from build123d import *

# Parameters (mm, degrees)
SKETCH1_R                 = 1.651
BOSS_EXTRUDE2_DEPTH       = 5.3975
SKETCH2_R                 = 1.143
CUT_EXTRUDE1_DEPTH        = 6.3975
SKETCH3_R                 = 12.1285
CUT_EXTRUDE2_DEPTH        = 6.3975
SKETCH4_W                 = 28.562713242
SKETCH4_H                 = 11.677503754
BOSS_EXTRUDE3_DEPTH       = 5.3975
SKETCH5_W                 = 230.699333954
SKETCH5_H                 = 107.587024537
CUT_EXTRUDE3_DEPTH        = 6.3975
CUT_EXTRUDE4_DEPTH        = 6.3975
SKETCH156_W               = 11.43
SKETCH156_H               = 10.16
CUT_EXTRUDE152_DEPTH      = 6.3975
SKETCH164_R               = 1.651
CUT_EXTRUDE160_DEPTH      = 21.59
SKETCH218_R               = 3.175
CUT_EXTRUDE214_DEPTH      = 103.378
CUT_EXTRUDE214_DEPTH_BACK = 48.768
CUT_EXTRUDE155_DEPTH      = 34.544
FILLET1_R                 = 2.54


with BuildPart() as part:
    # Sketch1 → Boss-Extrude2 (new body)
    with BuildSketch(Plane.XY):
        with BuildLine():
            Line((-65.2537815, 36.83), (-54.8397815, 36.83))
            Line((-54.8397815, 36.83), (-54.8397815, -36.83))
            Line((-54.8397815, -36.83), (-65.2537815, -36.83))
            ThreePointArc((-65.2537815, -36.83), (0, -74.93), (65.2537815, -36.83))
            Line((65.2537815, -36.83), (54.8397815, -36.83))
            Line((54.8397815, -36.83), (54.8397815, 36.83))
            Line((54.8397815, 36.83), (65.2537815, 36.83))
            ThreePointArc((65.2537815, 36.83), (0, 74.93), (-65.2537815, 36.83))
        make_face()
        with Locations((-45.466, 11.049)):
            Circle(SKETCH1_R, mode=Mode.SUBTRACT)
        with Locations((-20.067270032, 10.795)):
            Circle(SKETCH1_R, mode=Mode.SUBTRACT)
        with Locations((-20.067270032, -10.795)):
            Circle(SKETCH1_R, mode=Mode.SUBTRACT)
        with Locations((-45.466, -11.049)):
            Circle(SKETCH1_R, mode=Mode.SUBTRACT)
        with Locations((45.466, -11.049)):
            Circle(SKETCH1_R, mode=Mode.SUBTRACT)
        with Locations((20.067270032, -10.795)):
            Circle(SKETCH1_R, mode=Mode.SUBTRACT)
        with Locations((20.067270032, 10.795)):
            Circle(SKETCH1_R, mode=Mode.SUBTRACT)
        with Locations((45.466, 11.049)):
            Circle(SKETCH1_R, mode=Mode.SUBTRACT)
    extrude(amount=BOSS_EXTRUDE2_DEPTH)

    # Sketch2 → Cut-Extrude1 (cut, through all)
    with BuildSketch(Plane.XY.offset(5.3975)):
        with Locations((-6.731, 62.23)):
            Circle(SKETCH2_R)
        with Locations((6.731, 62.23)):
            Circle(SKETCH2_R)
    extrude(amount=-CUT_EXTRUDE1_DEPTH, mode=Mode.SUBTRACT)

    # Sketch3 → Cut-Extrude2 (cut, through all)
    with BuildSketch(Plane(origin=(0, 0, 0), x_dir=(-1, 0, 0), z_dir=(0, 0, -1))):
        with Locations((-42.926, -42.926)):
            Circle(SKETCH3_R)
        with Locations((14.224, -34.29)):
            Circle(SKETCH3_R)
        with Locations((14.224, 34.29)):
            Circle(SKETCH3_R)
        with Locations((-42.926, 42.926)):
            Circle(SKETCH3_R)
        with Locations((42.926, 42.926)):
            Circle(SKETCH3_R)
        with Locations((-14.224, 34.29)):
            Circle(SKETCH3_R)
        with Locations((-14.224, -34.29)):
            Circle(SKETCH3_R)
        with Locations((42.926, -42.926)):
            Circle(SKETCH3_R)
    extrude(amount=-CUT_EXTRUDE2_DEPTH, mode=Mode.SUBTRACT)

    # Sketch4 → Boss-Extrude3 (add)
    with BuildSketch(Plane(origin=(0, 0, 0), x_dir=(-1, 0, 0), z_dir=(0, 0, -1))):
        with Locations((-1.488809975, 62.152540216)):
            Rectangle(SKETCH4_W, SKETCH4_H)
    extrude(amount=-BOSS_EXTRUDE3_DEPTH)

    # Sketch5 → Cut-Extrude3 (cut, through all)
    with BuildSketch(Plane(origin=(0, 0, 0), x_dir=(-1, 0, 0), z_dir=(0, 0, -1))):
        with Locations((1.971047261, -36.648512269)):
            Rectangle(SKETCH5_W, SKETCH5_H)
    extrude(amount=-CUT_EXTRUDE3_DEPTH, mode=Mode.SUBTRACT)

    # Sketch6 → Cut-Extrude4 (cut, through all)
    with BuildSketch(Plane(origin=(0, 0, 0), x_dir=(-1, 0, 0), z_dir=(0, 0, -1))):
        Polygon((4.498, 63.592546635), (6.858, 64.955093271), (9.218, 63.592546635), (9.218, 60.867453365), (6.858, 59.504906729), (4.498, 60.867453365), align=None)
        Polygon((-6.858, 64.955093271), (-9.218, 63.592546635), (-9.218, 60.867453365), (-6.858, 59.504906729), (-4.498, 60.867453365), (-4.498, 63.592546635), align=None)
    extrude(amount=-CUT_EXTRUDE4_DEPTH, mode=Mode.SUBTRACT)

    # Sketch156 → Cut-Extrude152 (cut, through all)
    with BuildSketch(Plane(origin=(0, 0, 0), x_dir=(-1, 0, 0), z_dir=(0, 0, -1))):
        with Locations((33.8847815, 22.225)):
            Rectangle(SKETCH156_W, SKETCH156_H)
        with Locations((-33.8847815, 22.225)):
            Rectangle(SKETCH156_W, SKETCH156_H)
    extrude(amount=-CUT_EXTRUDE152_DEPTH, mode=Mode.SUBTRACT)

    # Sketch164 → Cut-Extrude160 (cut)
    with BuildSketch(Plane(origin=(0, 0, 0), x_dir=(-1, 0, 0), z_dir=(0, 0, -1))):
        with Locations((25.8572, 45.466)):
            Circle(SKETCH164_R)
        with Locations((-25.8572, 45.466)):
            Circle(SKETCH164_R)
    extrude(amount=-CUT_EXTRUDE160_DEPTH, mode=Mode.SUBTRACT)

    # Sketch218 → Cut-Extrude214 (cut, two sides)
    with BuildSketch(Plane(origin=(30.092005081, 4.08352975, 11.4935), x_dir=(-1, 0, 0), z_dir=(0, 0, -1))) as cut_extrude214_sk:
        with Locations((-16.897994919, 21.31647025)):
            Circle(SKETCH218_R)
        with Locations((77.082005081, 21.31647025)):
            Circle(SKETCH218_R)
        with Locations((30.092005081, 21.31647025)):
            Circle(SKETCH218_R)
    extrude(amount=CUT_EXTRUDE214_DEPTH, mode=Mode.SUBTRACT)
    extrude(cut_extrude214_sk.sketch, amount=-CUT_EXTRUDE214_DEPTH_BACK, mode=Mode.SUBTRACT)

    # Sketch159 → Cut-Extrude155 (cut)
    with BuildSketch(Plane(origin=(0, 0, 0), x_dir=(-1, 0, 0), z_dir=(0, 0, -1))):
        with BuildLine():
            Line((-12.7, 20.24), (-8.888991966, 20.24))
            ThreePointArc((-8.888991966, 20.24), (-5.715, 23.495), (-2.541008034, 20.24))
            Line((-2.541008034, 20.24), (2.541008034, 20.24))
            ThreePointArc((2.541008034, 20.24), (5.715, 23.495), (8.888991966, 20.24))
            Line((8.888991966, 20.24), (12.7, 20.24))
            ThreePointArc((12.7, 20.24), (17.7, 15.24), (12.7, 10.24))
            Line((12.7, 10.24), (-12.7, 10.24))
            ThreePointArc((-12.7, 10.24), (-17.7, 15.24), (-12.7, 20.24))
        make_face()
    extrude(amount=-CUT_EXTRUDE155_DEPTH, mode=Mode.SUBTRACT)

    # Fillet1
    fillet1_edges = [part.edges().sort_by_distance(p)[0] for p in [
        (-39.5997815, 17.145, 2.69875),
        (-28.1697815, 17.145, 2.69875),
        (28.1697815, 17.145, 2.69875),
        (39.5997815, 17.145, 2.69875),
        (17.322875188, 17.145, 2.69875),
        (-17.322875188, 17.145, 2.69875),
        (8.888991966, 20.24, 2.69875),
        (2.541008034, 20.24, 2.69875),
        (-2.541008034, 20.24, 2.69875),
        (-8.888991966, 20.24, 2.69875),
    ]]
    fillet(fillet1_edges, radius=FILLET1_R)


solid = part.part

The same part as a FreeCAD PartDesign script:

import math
import FreeCAD as App
import Part
import Sketcher
Q = App.Units.Quantity


def edges_at(feature, points):
    """Names of the edges that pass closest to the given points."""
    edges = feature.Shape.Edges
    near = lambda p: min(range(len(edges)), key=lambda i: edges[i].distToShape(Part.Vertex(*p))[0])
    return sorted({f"Edge{near(p) + 1}" for p in points})

doc = App.newDocument("Part")
body = doc.addObject("PartDesign::Body", "Body")

sketch1 = body.newObject("Sketcher::SketchObject", "Sketch")
sketch1.AttachmentSupport = (doc.getObject("XY_Plane"), [""])
sketch1.MapMode = "FlatFace"
sketch1.addGeometry([
    Part.LineSegment(App.Vector(-65.3, 36.8, 0), App.Vector(-54.8, 36.8, 0)),
    Part.LineSegment(App.Vector(-54.8, 36.8, 0), App.Vector(-54.8, -36.8, 0)),
    Part.LineSegment(App.Vector(-54.8, -36.8, 0), App.Vector(-65.3, -36.8, 0)),
    Part.ArcOfCircle(Part.Circle(App.Vector(0, 0, 0), App.Vector(0, 0, 1), 74.9), math.radians(-151), math.radians(-29)),
    Part.LineSegment(App.Vector(65.3, -36.8, 0), App.Vector(54.8, -36.8, 0)),
    Part.LineSegment(App.Vector(54.8, -36.8, 0), App.Vector(54.8, 36.8, 0)),
    Part.LineSegment(App.Vector(54.8, 36.8, 0), App.Vector(65.3, 36.8, 0)),
    Part.ArcOfCircle(Part.Circle(App.Vector(0, 0, 0), App.Vector(0, 0, 1), 74.9), math.radians(29), math.radians(151)),
    Part.Circle(App.Vector(-45.5, -11, 0), App.Vector(0, 0, 1), 1.7),
    Part.Circle(App.Vector(-20.1, -10.8, 0), App.Vector(0, 0, 1), 1.7),
    Part.Circle(App.Vector(20.1, -10.8, 0), App.Vector(0, 0, 1), 1.7),
    Part.Circle(App.Vector(45.5, -11, 0), App.Vector(0, 0, 1), 1.7),
    Part.Circle(App.Vector(-45.5, 11, 0), App.Vector(0, 0, 1), 1.7),
    Part.Circle(App.Vector(-20.1, 10.8, 0), App.Vector(0, 0, 1), 1.7),
    Part.Circle(App.Vector(20.1, 10.8, 0), App.Vector(0, 0, 1), 1.7),
    Part.Circle(App.Vector(45.5, 11, 0), App.Vector(0, 0, 1), 1.7),
], False)
sketch1.addConstraint([
    Sketcher.Constraint("Coincident", 0, 2, 1, 1),
    Sketcher.Constraint("Coincident", 1, 2, 2, 1),
    Sketcher.Constraint("Coincident", 2, 2, 3, 1),
    Sketcher.Constraint("Coincident", 3, 2, 4, 1),
    Sketcher.Constraint("Coincident", 4, 2, 5, 1),
    Sketcher.Constraint("Coincident", 5, 2, 6, 1),
    Sketcher.Constraint("Coincident", 6, 2, 7, 1),
    Sketcher.Constraint("Coincident", 7, 2, 0, 1),
    Sketcher.Constraint("Horizontal", 0),
    Sketcher.Constraint("Vertical", 1),
    Sketcher.Constraint("Horizontal", 2),
    Sketcher.Constraint("Horizontal", 4),
    Sketcher.Constraint("Vertical", 5),
    Sketcher.Constraint("Horizontal", 6),
    Sketcher.Constraint("Coincident", 3, 3, -1, 1),
    Sketcher.Constraint("Coincident", 7, 3, -1, 1),
    Sketcher.Constraint("Equal", 3, 7),
    Sketcher.Constraint("Equal", 8, 9),
    Sketcher.Constraint("Equal", 9, 10),
    Sketcher.Constraint("Equal", 10, 11),
    Sketcher.Constraint("Equal", 11, 12),
    Sketcher.Constraint("Equal", 12, 13),
    Sketcher.Constraint("Equal", 13, 14),
    Sketcher.Constraint("Equal", 14, 15),
    Sketcher.Constraint("Symmetric", 11, 3, 12, 3, -1, 1),
    Sketcher.Constraint("Symmetric", 10, 3, 13, 3, -1, 1),
    Sketcher.Constraint("Symmetric", 9, 3, 14, 3, -1, 1),
    Sketcher.Constraint("Symmetric", 8, 3, 15, 3, -1, 1),
    Sketcher.Constraint("Symmetric", 0, 2, 4, 2, -1, 1),
    Sketcher.Constraint("Symmetric", 9, 3, 10, 3, -2),
    Sketcher.Constraint("Symmetric", 8, 3, 11, 3, -2),
    Sketcher.Constraint("Horizontal", 2, 2, 3, 2),
    Sketcher.Constraint("Horizontal", 0, 2, 5, 2),
    Sketcher.Constraint("Diameter", 8, Q("0.13 in")),
    Sketcher.Constraint("Radius", 3, Q("2.95 in")),
    Sketcher.Constraint("DistanceY", 1, 2, 1, 1, Q("2.9 in")),
    Sketcher.Constraint("DistanceX", 0, 1, 0, 2, Q("0.41 in")),
    Sketcher.Constraint("DistanceX", 8, 3, -1, 1, Q("1.79 in")),
    Sketcher.Constraint("DistanceY", 8, 3, 9, 3, Q("0.01 in")),
    Sketcher.Constraint("DistanceY", 8, 3, 12, 3, Q("0.87 in")),
    Sketcher.Constraint("DistanceX", 9, 3, 10, 3, Q("1.5801 in")),
])
pad1 = body.newObject("PartDesign::Pad", "Pad")
pad1.Profile = sketch1
pad1.Length = Q("0.2125 in")

sketch2 = body.newObject("Sketcher::SketchObject", "Sketch001")
sketch2.AttachmentSupport = (doc.getObject("XY_Plane"), [""])
sketch2.MapMode = "FlatFace"
sketch2.AttachmentOffset = App.Placement(App.Vector(0, 0, 0.2125 * 25.4), App.Rotation())
sketch2.addGeometry([
    Part.Circle(App.Vector(-6.7, 62.2, 0), App.Vector(0, 0, 1), 1.1),
    Part.Circle(App.Vector(6.7, 62.2, 0), App.Vector(0, 0, 1), 1.1),
], False)
sketch2.addConstraint([
    Sketcher.Constraint("Equal", 0, 1),
    Sketcher.Constraint("Symmetric", 0, 3, 1, 3, -2),
    Sketcher.Constraint("Diameter", 0, Q("0.09 in")),
    Sketcher.Constraint("DistanceY", -1, 1, 0, 3, Q("2.45 in")),
    Sketcher.Constraint("DistanceX", 0, 3, 1, 3, Q("0.53 in")),
])
pocket1 = body.newObject("PartDesign::Pocket", "Pocket")
pocket1.Profile = sketch2
pocket1.Type = "ThroughAll"

sketch3 = body.newObject("Sketcher::SketchObject", "Sketch002")
sketch3.AttachmentSupport = (doc.getObject("XY_Plane"), [""])
sketch3.MapMode = "FlatFace"
sketch3.addGeometry([
    Part.Circle(App.Vector(43, -43, 0), App.Vector(0, 0, 1), 12),
    Part.Circle(App.Vector(-14, -34, 0), App.Vector(0, 0, 1), 12),
    Part.Circle(App.Vector(-14, 34, 0), App.Vector(0, 0, 1), 12),
    Part.Circle(App.Vector(43, 43, 0), App.Vector(0, 0, 1), 12),
    Part.Circle(App.Vector(-43, 43, 0), App.Vector(0, 0, 1), 12),
    Part.Circle(App.Vector(14, 34, 0), App.Vector(0, 0, 1), 12),
    Part.Circle(App.Vector(14, -34, 0), App.Vector(0, 0, 1), 12),
    Part.Circle(App.Vector(-43, -43, 0), App.Vector(0, 0, 1), 12),
], False)
sketch3.addConstraint([
    Sketcher.Constraint("Equal", 0, 1),
    Sketcher.Constraint("Equal", 1, 2),
    Sketcher.Constraint("Equal", 2, 3),
    Sketcher.Constraint("Equal", 3, 4),
    Sketcher.Constraint("Equal", 4, 5),
    Sketcher.Constraint("Equal", 5, 6),
    Sketcher.Constraint("Equal", 6, 7),
    Sketcher.Constraint("Symmetric", 0, 3, 4, 3, -1, 1),
    Sketcher.Constraint("Symmetric", 1, 3, 5, 3, -1, 1),
    Sketcher.Constraint("Symmetric", 2, 3, 6, 3, -1, 1),
    Sketcher.Constraint("Symmetric", 3, 3, 7, 3, -1, 1),
    Sketcher.Constraint("Symmetric", 3, 3, 4, 3, -2),
    Sketcher.Constraint("Symmetric", 2, 3, 5, 3, -2),
    Sketcher.Constraint("Diameter", 0, Q("0.955 in")),
    Sketcher.Constraint("DistanceY", 1, 3, 2, 3, Q("2.7 in")),
    Sketcher.Constraint("DistanceX", -1, 1, 0, 3, Q("1.69 in")),
    Sketcher.Constraint("DistanceY", 0, 3, -1, 1, Q("1.69 in")),
    Sketcher.Constraint("DistanceX", 1, 3, -1, 1, Q("0.56 in")),
])
pocket2 = body.newObject("PartDesign::Pocket", "Pocket001")
pocket2.Profile = sketch3
pocket2.Type = "ThroughAll"
pocket2.Reversed = True

sketch4 = body.newObject("Sketcher::SketchObject", "Sketch003")
sketch4.AttachmentSupport = (doc.getObject("XY_Plane"), [""])
sketch4.MapMode = "FlatFace"
sketch4.addGeometry([
    Part.LineSegment(App.Vector(16, 68, 0), App.Vector(16, 56, 0)),
    Part.LineSegment(App.Vector(16, 56, 0), App.Vector(-13, 56, 0)),
    Part.LineSegment(App.Vector(-13, 56, 0), App.Vector(-13, 68, 0)),
    Part.LineSegment(App.Vector(-13, 68, 0), App.Vector(16, 68, 0)),
], False)
sketch4.addConstraint([
    Sketcher.Constraint("Coincident", 0, 2, 1, 1),
    Sketcher.Constraint("Coincident", 1, 2, 2, 1),
    Sketcher.Constraint("Coincident", 2, 2, 3, 1),
    Sketcher.Constraint("Coincident", 3, 2, 0, 1),
    Sketcher.Constraint("Vertical", 0),
    Sketcher.Constraint("Horizontal", 1),
    Sketcher.Constraint("Vertical", 2),
    Sketcher.Constraint("Horizontal", 3),
    Sketcher.Constraint("DistanceX", 1, 2, 1, 1, 28.562713),
    Sketcher.Constraint("DistanceY", 0, 2, 0, 1, 11.677504),
    Sketcher.Constraint("DistanceY", -1, 1, 0, 2, 56.313788),
    Sketcher.Constraint("DistanceX", -1, 1, 0, 2, 15.770167),
])
pad2 = body.newObject("PartDesign::Pad", "Pad001")
pad2.Profile = sketch4
pad2.Length = Q("0.2125 in")

sketch5 = body.newObject("Sketcher::SketchObject", "Sketch004")
sketch5.AttachmentSupport = (doc.getObject("XY_Plane"), [""])
sketch5.MapMode = "FlatFace"
sketch5.addGeometry([
    Part.LineSegment(App.Vector(113, 17, 0), App.Vector(113, -90, 0)),
    Part.LineSegment(App.Vector(113, -90, 0), App.Vector(-117, -90, 0)),
    Part.LineSegment(App.Vector(-117, -90, 0), App.Vector(-117, 17, 0)),
    Part.LineSegment(App.Vector(-117, 17, 0), App.Vector(113, 17, 0)),
], False)
sketch5.addConstraint([
    Sketcher.Constraint("Coincident", 0, 2, 1, 1),
    Sketcher.Constraint("Coincident", 1, 2, 2, 1),
    Sketcher.Constraint("Coincident", 2, 2, 3, 1),
    Sketcher.Constraint("Coincident", 3, 2, 0, 1),
    Sketcher.Constraint("Vertical", 0),
    Sketcher.Constraint("Horizontal", 1),
    Sketcher.Constraint("Vertical", 2),
    Sketcher.Constraint("Horizontal", 3),
    Sketcher.Constraint("DistanceY", -1, 1, 2, 2, Q("0.675 in")),
    Sketcher.Constraint("DistanceX", 1, 2, 1, 1, 230.699334),
    Sketcher.Constraint("DistanceY", 0, 2, 0, 1, 107.587025),
    Sketcher.Constraint("DistanceX", -1, 1, 0, 2, 113.37862),
])
pocket3 = body.newObject("PartDesign::Pocket", "Pocket002")
pocket3.Profile = sketch5
pocket3.Type = "ThroughAll"
pocket3.Reversed = True

sketch6 = body.newObject("Sketcher::SketchObject", "Sketch005")
sketch6.AttachmentSupport = (doc.getObject("XY_Plane"), [""])
sketch6.MapMode = "FlatFace"
sketch6.addGeometry([
    Part.LineSegment(App.Vector(-6.9, 65, 0), App.Vector(-4.5, 63.6, 0)),
    Part.LineSegment(App.Vector(-4.5, 63.6, 0), App.Vector(-4.5, 60.9, 0)),
    Part.LineSegment(App.Vector(-4.5, 60.9, 0), App.Vector(-6.9, 59.5, 0)),
    Part.LineSegment(App.Vector(-6.9, 59.5, 0), App.Vector(-9.2, 60.9, 0)),
    Part.LineSegment(App.Vector(-9.2, 60.9, 0), App.Vector(-9.2, 63.6, 0)),
    Part.LineSegment(App.Vector(-9.2, 63.6, 0), App.Vector(-6.9, 65, 0)),
    Part.LineSegment(App.Vector(6.9, 65, 0), App.Vector(9.2, 63.6, 0)),
    Part.LineSegment(App.Vector(9.2, 63.6, 0), App.Vector(9.2, 60.9, 0)),
    Part.LineSegment(App.Vector(9.2, 60.9, 0), App.Vector(6.9, 59.5, 0)),
    Part.LineSegment(App.Vector(6.9, 59.5, 0), App.Vector(4.5, 60.9, 0)),
    Part.LineSegment(App.Vector(4.5, 60.9, 0), App.Vector(4.5, 63.6, 0)),
    Part.LineSegment(App.Vector(4.5, 63.6, 0), App.Vector(6.9, 65, 0)),
], False)
sketch6.addConstraint([
    Sketcher.Constraint("Coincident", 0, 2, 1, 1),
    Sketcher.Constraint("Coincident", 1, 2, 2, 1),
    Sketcher.Constraint("Coincident", 2, 2, 3, 1),
    Sketcher.Constraint("Coincident", 3, 2, 4, 1),
    Sketcher.Constraint("Coincident", 4, 2, 5, 1),
    Sketcher.Constraint("Coincident", 5, 2, 0, 1),
    Sketcher.Constraint("Coincident", 6, 2, 7, 1),
    Sketcher.Constraint("Coincident", 7, 2, 8, 1),
    Sketcher.Constraint("Coincident", 8, 2, 9, 1),
    Sketcher.Constraint("Coincident", 9, 2, 10, 1),
    Sketcher.Constraint("Coincident", 10, 2, 11, 1),
    Sketcher.Constraint("Coincident", 11, 2, 6, 1),
    Sketcher.Constraint("Vertical", 1),
    Sketcher.Constraint("Vertical", 4),
    Sketcher.Constraint("Vertical", 7),
    Sketcher.Constraint("Vertical", 10),
    Sketcher.Constraint("Symmetric", 4, 2, 6, 2, -2),
    Sketcher.Constraint("Symmetric", 2, 2, 8, 2, -2),
    Sketcher.Constraint("Symmetric", 1, 2, 9, 2, -2),
    Sketcher.Constraint("Symmetric", 5, 2, 11, 2, -2),
    Sketcher.Constraint("Parallel", 0, 3),
    Sketcher.Constraint("Parallel", 2, 5),
    Sketcher.Constraint("Parallel", 3, 6),
    Sketcher.Constraint("Parallel", 5, 8),
    Sketcher.Constraint("Parallel", 8, 11),
    Sketcher.Constraint("Horizontal", 1, 2, 3, 2),
    Sketcher.Constraint("Horizontal", 0, 2, 4, 2),
    Sketcher.Constraint("Angle", 0, Q("-30 deg")),
    Sketcher.Constraint("DistanceX", 2, 2, -1, 1, Q("0.27 in")),
    Sketcher.Constraint("DistanceX", 0, 2, -1, 1, 4.498),
    Sketcher.Constraint("DistanceY", 1, 2, 1, 1, 2.725093),
    Sketcher.Constraint("DistanceY", -1, 1, 0, 2, 63.592547),
])
pocket4 = body.newObject("PartDesign::Pocket", "Pocket003")
pocket4.Profile = sketch6
pocket4.Type = "ThroughAll"
pocket4.Reversed = True

sketch7 = body.newObject("Sketcher::SketchObject", "Sketch006")
sketch7.AttachmentSupport = (doc.getObject("XY_Plane"), [""])
sketch7.MapMode = "FlatFace"
sketch7.addGeometry([
    Part.LineSegment(App.Vector(-28, 27, 0), App.Vector(-28, 17, 0)),
    Part.LineSegment(App.Vector(-28, 17, 0), App.Vector(-40, 17, 0)),
    Part.LineSegment(App.Vector(-40, 17, 0), App.Vector(-40, 27, 0)),
    Part.LineSegment(App.Vector(-40, 27, 0), App.Vector(-28, 27, 0)),
    Part.LineSegment(App.Vector(40, 27, 0), App.Vector(40, 17, 0)),
    Part.LineSegment(App.Vector(40, 17, 0), App.Vector(28, 17, 0)),
    Part.LineSegment(App.Vector(28, 17, 0), App.Vector(28, 27, 0)),
    Part.LineSegment(App.Vector(28, 27, 0), App.Vector(40, 27, 0)),
], False)
sketch7.addConstraint([
    Sketcher.Constraint("Coincident", 0, 2, 1, 1),
    Sketcher.Constraint("Coincident", 1, 2, 2, 1),
    Sketcher.Constraint("Coincident", 2, 2, 3, 1),
    Sketcher.Constraint("Coincident", 3, 2, 0, 1),
    Sketcher.Constraint("Coincident", 4, 2, 5, 1),
    Sketcher.Constraint("Coincident", 5, 2, 6, 1),
    Sketcher.Constraint("Coincident", 6, 2, 7, 1),
    Sketcher.Constraint("Coincident", 7, 2, 4, 1),
    Sketcher.Constraint("Vertical", 0),
    Sketcher.Constraint("Horizontal", 1),
    Sketcher.Constraint("Vertical", 2),
    Sketcher.Constraint("Horizontal", 3),
    Sketcher.Constraint("Vertical", 4),
    Sketcher.Constraint("Horizontal", 5),
    Sketcher.Constraint("Vertical", 6),
    Sketcher.Constraint("Horizontal", 7),
    Sketcher.Constraint("Symmetric", 1, 2, 4, 2, -2),
    Sketcher.Constraint("Symmetric", 3, 2, 6, 2, -2),
    Sketcher.Constraint("DistanceY", 0, 2, 0, 1, Q("0.4 in")),
    Sketcher.Constraint("DistanceX", 1, 2, 1, 1, Q("0.45 in")),
    Sketcher.Constraint("DistanceY", -1, 1, 0, 2, Q("0.675 in")),
    Sketcher.Constraint("DistanceX", 0, 2, -1, 1, 28.169781),
])
pocket5 = body.newObject("PartDesign::Pocket", "Pocket004")
pocket5.Profile = sketch7
pocket5.Type = "ThroughAll"
pocket5.Reversed = True

sketch8 = body.newObject("Sketcher::SketchObject", "Sketch007")
sketch8.AttachmentSupport = (doc.getObject("XY_Plane"), [""])
sketch8.MapMode = "FlatFace"
sketch8.addGeometry([
    Part.Circle(App.Vector(-25.9, 45.5, 0), App.Vector(0, 0, 1), 1.7),
    Part.Circle(App.Vector(25.9, 45.5, 0), App.Vector(0, 0, 1), 1.7),
], False)
sketch8.addConstraint([
    Sketcher.Constraint("Equal", 0, 1),
    Sketcher.Constraint("Symmetric", 0, 3, 1, 3, -2),
    Sketcher.Constraint("Diameter", 0, Q("0.13 in")),
    Sketcher.Constraint("DistanceY", -1, 1, 0, 3, Q("1.79 in")),
    Sketcher.Constraint("DistanceX", 0, 3, -1, 1, Q("1.018 in")),
])
pocket6 = body.newObject("PartDesign::Pocket", "Pocket005")
pocket6.Profile = sketch8
pocket6.Length = Q("0.85 in")
pocket6.Reversed = True

sketch9 = body.newObject("Sketcher::SketchObject", "Sketch008")
sketch9.AttachmentSupport = (doc.getObject("XY_Plane"), [""])
sketch9.MapMode = "FlatFace"
sketch9.AttachmentOffset = App.Placement(App.Vector(0, 0, 0.4525 * 25.4), App.Rotation())
sketch9.addGeometry([
    Part.Circle(App.Vector(47, 25.4, 0), App.Vector(0, 0, 1), 3.2),
    Part.Circle(App.Vector(-47, 25.4, 0), App.Vector(0, 0, 1), 3.2),
    Part.Circle(App.Vector(0, 25.4, 0), App.Vector(0, 0, 1), 3.2),
], False)
sketch9.addConstraint([
    Sketcher.Constraint("Equal", 0, 1),
    Sketcher.Constraint("Equal", 1, 2),
    Sketcher.Constraint("Symmetric", 0, 3, 1, 3, -2),
    Sketcher.Constraint("PointOnObject", 2, 3, -2),
    Sketcher.Constraint("Horizontal", 1, 3, 2, 3),
    Sketcher.Constraint("Diameter", 0, Q("0.25 in")),
    Sketcher.Constraint("DistanceY", -1, 1, 0, 3, Q("1 in")),
    Sketcher.Constraint("DistanceX", 1, 3, 0, 3, Q("3.7 in")),
])
pocket7 = body.newObject("PartDesign::Pocket", "Pocket006")
pocket7.Profile = sketch9
pocket7.Type = "ThroughAll"
pocket7.Midplane = True

sketch10 = body.newObject("Sketcher::SketchObject", "Sketch009")
sketch10.AttachmentSupport = (doc.getObject("XY_Plane"), [""])
sketch10.MapMode = "FlatFace"
sketch10.addGeometry([
    Part.LineSegment(App.Vector(8.9, 20.2, 0), App.Vector(12.7, 20.2, 0)),
    Part.ArcOfCircle(Part.Circle(App.Vector(12.7, 15.2, 0), App.Vector(0, 0, 1), 5), math.radians(-90), math.radians(90)),
    Part.LineSegment(App.Vector(12.7, 10.2, 0), App.Vector(-12.7, 10.2, 0)),
    Part.ArcOfCircle(Part.Circle(App.Vector(-12.7, 15.2, 0), App.Vector(0, 0, 1), 5), math.radians(90), math.radians(270)),
    Part.LineSegment(App.Vector(-12.7, 20.2, 0), App.Vector(-8.9, 20.2, 0)),
    Part.ArcOfCircle(Part.Circle(App.Vector(-5.7, 20.3, 0), App.Vector(0, 0, 1), 3.2), math.radians(-1), math.radians(181)),
    Part.LineSegment(App.Vector(-2.5, 20.2, 0), App.Vector(2.5, 20.2, 0)),
    Part.ArcOfCircle(Part.Circle(App.Vector(5.7, 20.3, 0), App.Vector(0, 0, 1), 3.2), math.radians(-1), math.radians(181)),
], False)
sketch10.addConstraint([
    Sketcher.Constraint("Tangent", 0, 2, 1, 2),
    Sketcher.Constraint("Tangent", 1, 1, 2, 1),
    Sketcher.Constraint("Tangent", 2, 2, 3, 2),
    Sketcher.Constraint("Tangent", 3, 1, 4, 1),
    Sketcher.Constraint("Coincident", 4, 2, 5, 2),
    Sketcher.Constraint("Coincident", 5, 1, 6, 1),
    Sketcher.Constraint("Coincident", 6, 2, 7, 2),
    Sketcher.Constraint("Coincident", 7, 1, 0, 1),
    Sketcher.Constraint("Horizontal", 0),
    Sketcher.Constraint("Horizontal", 2),
    Sketcher.Constraint("Horizontal", 4),
    Sketcher.Constraint("Horizontal", 6),
    Sketcher.Constraint("Equal", 1, 3),
    Sketcher.Constraint("Equal", 5, 7),
    Sketcher.Constraint("Symmetric", 5, 3, 7, 3, -2),
    Sketcher.Constraint("Horizontal", 4, 2, 5, 1),
    Sketcher.Constraint("Equal", 0, 4),
    Sketcher.Constraint("DistanceX", 2, 2, 2, 1, Q("1 in")),
    Sketcher.Constraint("Radius", 5, Q("0.125 in")),
    Sketcher.Constraint("DistanceY", -1, 1, 1, 3, Q("0.6 in")),
    Sketcher.Constraint("DistanceY", -1, 1, 5, 3, Q("0.8 in")),
    Sketcher.Constraint("Radius", 1, 5.0),
    Sketcher.Constraint("DistanceX", 5, 3, 7, 3, Q("0.45 in")),
])
pocket8 = body.newObject("PartDesign::Pocket", "Pocket007")
pocket8.Profile = sketch10
pocket8.Length = Q("1.36 in")
pocket8.Reversed = True
doc.recompute()

fillet = body.newObject("PartDesign::Fillet", "Fillet")
fillet.Base = (pocket8, edges_at(pocket8, [
    (-39.6, 17.145, 2.699),
    (-28.17, 17.145, 2.699),
    (28.17, 17.145, 2.699),
    (39.6, 17.145, 2.699),
    (17.323, 17.145, 2.699),
    (-17.323, 17.145, 2.699),
    (8.889, 20.24, 2.699),
    (2.541, 20.24, 2.699),
    (-2.541, 20.24, 2.699),
    (-8.889, 20.24, 2.699),
]))
fillet.Radius = Q("0.1 in")

doc.recompute()
